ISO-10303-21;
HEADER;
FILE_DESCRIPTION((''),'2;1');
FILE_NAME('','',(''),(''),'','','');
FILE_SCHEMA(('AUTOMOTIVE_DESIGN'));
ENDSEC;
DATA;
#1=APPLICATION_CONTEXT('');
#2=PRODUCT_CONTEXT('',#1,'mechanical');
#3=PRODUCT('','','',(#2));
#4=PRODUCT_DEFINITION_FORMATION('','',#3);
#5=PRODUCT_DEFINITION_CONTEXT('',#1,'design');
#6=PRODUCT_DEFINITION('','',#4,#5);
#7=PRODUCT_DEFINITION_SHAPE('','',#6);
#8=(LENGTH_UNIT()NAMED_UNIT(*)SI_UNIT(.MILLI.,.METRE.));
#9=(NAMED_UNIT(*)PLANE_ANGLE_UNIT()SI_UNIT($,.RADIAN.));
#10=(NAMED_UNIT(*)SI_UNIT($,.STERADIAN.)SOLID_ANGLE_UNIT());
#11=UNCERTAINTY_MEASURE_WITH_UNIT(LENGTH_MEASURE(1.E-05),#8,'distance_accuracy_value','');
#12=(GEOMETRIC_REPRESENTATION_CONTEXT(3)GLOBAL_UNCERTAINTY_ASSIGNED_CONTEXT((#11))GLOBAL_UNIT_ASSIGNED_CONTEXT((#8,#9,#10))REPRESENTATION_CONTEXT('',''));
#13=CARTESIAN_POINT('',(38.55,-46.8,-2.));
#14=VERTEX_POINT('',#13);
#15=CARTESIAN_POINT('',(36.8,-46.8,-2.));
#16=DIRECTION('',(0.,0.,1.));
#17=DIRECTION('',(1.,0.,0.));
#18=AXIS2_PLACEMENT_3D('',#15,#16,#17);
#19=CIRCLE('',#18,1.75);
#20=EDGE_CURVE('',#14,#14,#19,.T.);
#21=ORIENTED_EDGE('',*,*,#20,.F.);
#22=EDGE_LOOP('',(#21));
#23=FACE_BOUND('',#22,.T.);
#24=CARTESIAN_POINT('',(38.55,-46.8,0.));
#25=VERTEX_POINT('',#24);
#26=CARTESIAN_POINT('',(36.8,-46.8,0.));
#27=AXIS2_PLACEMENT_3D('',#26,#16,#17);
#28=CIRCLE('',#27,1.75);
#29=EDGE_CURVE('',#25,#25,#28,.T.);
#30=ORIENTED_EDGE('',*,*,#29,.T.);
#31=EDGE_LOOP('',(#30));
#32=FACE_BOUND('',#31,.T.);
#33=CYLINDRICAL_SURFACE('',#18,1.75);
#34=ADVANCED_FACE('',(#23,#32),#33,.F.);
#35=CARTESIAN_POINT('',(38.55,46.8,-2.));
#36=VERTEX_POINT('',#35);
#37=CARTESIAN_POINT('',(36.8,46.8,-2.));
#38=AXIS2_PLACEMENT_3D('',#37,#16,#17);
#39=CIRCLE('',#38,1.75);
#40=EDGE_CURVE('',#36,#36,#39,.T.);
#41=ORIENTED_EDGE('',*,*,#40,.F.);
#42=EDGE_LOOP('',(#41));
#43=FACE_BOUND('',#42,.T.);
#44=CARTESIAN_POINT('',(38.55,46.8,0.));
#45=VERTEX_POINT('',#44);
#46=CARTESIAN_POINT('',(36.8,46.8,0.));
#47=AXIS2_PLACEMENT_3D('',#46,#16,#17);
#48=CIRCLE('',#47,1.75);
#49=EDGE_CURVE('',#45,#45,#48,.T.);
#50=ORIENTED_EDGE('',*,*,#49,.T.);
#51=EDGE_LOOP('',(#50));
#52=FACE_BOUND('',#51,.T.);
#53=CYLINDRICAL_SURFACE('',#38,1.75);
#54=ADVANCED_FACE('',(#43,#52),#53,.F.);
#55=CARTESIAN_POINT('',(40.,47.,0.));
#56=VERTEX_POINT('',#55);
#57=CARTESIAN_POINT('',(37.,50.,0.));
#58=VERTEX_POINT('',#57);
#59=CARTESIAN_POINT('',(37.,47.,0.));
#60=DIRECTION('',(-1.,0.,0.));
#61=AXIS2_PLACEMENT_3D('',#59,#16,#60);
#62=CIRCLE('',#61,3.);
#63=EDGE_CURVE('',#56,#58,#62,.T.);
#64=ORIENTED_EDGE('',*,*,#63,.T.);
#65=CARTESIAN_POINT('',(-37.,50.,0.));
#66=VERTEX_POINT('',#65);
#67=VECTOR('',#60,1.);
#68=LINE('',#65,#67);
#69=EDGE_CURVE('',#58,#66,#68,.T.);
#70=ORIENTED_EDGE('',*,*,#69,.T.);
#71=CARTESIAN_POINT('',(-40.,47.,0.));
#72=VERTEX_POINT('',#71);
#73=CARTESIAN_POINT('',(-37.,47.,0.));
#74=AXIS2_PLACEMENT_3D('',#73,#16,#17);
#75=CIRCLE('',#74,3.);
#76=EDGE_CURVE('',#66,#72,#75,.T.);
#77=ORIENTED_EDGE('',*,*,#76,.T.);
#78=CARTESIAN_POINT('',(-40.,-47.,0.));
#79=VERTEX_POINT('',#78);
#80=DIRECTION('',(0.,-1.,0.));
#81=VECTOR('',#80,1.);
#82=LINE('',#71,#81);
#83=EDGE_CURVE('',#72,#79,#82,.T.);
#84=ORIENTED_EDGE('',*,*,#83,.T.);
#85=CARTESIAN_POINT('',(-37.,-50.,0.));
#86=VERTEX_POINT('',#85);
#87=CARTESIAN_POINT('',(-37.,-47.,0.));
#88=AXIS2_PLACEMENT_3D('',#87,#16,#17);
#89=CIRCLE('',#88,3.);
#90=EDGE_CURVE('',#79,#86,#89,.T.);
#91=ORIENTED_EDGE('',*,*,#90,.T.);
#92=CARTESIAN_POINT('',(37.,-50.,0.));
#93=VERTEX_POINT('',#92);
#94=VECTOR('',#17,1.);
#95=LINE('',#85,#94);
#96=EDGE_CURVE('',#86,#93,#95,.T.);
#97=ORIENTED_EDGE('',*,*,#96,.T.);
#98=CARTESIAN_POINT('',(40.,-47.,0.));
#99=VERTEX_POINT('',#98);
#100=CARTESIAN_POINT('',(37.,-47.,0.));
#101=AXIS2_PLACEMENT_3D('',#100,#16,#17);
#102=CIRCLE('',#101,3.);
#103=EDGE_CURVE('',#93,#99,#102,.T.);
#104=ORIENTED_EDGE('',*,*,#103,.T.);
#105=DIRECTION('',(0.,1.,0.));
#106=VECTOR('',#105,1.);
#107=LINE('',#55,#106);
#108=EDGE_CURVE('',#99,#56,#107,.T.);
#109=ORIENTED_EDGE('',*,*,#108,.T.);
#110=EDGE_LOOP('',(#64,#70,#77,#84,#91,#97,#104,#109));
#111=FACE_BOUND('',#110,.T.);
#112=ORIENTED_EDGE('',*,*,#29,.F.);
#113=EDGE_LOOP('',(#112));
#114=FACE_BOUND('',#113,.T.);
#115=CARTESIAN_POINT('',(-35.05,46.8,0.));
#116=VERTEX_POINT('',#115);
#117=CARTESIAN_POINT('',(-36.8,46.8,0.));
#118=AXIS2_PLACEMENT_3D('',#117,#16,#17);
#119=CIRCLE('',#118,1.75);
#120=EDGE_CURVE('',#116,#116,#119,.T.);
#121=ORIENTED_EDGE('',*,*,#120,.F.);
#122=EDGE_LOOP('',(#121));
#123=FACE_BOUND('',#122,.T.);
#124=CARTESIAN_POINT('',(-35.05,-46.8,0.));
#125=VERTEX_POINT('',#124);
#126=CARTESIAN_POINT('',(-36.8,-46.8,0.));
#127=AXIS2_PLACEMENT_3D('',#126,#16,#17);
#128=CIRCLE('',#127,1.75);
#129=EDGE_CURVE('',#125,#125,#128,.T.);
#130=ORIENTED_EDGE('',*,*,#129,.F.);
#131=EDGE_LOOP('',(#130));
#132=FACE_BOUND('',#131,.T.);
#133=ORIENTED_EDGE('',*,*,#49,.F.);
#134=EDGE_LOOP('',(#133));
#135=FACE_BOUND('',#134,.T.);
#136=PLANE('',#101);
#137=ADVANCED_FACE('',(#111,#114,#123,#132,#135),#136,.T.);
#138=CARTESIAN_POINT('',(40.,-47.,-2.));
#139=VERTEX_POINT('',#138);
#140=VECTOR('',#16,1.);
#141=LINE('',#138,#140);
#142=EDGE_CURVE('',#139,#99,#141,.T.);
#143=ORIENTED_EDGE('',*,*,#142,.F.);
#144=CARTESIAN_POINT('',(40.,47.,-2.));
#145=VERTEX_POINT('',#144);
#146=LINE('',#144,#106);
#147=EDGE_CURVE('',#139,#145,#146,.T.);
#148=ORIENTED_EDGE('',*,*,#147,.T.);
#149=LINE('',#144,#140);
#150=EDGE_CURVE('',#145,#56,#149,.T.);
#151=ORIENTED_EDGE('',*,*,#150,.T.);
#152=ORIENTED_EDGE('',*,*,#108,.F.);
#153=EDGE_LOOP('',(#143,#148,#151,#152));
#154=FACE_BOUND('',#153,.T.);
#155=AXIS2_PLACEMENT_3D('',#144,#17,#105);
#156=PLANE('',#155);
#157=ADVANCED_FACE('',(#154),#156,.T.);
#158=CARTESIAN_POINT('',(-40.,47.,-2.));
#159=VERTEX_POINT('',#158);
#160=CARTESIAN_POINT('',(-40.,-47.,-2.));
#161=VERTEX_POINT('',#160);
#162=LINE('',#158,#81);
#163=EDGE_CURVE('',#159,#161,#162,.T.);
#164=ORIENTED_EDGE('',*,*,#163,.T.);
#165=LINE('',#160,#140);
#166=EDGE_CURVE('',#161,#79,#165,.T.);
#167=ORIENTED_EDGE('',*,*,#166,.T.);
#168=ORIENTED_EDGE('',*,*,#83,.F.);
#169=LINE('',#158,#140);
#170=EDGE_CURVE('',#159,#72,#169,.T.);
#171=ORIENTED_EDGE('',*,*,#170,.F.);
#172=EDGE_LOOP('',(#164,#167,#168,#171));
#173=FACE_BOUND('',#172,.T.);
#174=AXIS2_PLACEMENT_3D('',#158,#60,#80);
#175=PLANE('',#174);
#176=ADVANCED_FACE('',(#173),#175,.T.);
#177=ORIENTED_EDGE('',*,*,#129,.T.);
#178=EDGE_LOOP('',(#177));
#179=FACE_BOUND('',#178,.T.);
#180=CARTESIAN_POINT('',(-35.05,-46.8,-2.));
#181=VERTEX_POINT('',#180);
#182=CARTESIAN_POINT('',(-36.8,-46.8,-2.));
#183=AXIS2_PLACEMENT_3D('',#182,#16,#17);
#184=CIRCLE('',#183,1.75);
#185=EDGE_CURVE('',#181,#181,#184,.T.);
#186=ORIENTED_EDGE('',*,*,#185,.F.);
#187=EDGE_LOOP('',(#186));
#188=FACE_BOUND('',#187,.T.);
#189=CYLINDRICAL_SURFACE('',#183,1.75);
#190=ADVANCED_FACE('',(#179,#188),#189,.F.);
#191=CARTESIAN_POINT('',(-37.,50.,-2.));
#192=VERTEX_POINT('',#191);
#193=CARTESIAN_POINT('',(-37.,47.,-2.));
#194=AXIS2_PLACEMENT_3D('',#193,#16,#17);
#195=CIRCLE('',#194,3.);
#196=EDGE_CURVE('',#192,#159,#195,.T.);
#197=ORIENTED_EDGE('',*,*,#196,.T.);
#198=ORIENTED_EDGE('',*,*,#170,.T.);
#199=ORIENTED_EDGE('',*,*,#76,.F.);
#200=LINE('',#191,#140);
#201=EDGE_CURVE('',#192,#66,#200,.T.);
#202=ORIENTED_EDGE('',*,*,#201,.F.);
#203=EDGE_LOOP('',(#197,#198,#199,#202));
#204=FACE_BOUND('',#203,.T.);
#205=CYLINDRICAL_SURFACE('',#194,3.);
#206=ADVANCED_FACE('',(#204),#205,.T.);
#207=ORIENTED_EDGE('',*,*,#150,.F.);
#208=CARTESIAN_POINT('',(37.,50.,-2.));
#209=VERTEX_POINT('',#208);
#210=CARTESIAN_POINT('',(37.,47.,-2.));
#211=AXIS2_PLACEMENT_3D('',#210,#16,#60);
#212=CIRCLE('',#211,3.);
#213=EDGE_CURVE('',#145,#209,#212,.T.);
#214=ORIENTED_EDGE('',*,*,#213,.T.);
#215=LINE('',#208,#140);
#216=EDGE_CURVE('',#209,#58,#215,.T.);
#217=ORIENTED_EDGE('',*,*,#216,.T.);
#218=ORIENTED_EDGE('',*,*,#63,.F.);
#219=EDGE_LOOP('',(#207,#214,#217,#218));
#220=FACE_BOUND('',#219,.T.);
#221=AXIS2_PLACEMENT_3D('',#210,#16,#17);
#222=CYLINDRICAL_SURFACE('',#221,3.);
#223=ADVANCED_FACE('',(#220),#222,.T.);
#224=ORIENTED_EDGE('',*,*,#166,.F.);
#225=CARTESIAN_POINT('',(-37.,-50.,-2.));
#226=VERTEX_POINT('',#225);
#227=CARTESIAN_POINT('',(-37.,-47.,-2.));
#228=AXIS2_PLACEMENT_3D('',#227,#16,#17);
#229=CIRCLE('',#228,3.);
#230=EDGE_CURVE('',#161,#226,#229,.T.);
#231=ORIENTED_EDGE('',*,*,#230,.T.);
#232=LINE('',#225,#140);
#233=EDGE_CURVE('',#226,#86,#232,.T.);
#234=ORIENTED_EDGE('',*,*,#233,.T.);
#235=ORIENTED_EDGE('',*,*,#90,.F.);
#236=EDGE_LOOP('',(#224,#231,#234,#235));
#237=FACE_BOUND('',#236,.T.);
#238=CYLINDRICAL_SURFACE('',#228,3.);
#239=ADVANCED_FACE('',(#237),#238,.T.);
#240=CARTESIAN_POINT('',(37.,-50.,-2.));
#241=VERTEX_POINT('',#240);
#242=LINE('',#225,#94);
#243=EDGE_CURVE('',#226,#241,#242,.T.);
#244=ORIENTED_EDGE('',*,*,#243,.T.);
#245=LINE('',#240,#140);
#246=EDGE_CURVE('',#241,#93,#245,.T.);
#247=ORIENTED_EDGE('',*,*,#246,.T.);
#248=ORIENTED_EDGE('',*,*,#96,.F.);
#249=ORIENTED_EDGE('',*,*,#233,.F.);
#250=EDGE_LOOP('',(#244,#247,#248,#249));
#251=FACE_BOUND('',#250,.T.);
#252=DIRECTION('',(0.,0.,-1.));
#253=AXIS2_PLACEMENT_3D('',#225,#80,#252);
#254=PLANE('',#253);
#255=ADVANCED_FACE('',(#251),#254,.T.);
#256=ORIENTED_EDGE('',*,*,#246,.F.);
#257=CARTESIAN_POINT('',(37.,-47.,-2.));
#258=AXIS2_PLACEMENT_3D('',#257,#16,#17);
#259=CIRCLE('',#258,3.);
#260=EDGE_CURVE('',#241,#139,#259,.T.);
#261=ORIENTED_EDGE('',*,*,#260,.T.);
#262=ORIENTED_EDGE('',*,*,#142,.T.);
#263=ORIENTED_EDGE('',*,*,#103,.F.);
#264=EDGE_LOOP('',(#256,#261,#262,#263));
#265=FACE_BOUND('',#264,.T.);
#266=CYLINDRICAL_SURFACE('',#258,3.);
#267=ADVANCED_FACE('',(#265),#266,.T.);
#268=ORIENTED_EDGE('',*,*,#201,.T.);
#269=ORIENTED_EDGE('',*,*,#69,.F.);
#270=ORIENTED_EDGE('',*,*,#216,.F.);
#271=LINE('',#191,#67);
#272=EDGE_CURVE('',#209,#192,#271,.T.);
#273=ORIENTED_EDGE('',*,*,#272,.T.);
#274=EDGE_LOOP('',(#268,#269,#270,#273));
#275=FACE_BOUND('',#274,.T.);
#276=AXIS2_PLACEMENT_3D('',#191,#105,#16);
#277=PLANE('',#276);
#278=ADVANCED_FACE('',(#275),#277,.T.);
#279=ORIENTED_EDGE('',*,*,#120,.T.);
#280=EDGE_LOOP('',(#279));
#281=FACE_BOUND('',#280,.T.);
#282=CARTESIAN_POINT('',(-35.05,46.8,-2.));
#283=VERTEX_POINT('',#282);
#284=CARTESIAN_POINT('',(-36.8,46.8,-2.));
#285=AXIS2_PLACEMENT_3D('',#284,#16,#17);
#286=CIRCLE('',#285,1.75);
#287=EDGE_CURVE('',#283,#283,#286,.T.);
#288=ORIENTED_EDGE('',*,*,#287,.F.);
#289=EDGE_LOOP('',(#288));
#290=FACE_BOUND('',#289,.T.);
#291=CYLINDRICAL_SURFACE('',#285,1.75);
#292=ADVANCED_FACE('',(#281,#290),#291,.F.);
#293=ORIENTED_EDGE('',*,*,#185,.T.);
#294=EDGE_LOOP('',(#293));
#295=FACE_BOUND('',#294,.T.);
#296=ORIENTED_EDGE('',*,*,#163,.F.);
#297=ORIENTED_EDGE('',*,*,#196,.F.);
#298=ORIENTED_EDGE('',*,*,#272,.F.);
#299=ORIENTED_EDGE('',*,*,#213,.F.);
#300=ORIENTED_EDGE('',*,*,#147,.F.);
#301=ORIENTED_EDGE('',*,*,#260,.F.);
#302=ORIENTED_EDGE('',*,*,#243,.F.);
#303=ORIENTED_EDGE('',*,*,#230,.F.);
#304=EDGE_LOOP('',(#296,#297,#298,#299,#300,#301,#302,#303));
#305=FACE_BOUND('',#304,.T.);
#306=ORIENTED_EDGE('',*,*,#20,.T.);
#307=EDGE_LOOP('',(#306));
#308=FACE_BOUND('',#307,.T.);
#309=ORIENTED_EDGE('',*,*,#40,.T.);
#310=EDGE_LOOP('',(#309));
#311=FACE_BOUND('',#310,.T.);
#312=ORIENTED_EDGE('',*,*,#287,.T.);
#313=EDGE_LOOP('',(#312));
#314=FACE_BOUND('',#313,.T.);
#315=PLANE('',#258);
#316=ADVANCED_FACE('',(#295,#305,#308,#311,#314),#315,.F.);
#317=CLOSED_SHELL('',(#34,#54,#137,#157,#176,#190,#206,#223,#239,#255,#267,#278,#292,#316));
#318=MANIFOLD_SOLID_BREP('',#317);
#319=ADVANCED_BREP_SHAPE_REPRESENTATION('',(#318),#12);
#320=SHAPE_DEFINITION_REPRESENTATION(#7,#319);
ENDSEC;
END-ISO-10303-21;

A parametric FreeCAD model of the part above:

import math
import FreeCAD as App
import Part
import Sketcher
from FreeCAD import Vector
Q = App.Units.Quantity

doc = App.newDocument("Part")
body = doc.addObject("PartDesign::Body", "Body")

sketch1 = body.newObject("Sketcher::SketchObject", "Sketch")
sketch1.AttachmentSupport = (doc.getObject("XY_Plane"), [""])
sketch1.MapMode = "FlatFace"
sketch1.addGeometry([
    Part.LineSegment(Vector(37, 50, 0), Vector(-37, 50, 0)),
    Part.ArcOfCircle(Part.Circle(Vector(-37, 47, 0), Vector(0, 0, 1), 3), math.radians(90), math.radians(180)),
    Part.LineSegment(Vector(-40, 47, 0), Vector(-40, -47, 0)),
    Part.ArcOfCircle(Part.Circle(Vector(-37, -47, 0), Vector(0, 0, 1), 3), math.radians(180), math.radians(270)),
    Part.LineSegment(Vector(-37, -50, 0), Vector(37, -50, 0)),
    Part.ArcOfCircle(Part.Circle(Vector(37, -47, 0), Vector(0, 0, 1), 3), math.radians(-90), math.radians(0)),
    Part.LineSegment(Vector(40, -47, 0), Vector(40, 47, 0)),
    Part.ArcOfCircle(Part.Circle(Vector(37, 47, 0), Vector(0, 0, 1), 3), math.radians(0), math.radians(90)),
], False)
sketch1.addConstraint([
    Sketcher.Constraint("Tangent", 0, 2, 1, 1),
    Sketcher.Constraint("Tangent", 1, 2, 2, 1),
    Sketcher.Constraint("Tangent", 2, 2, 3, 1),
    Sketcher.Constraint("Tangent", 3, 2, 4, 1),
    Sketcher.Constraint("Tangent", 4, 2, 5, 1),
    Sketcher.Constraint("Tangent", 5, 2, 6, 1),
    Sketcher.Constraint("Tangent", 6, 2, 7, 1),
    Sketcher.Constraint("Tangent", 7, 2, 0, 1),
    Sketcher.Constraint("Horizontal", 0),
    Sketcher.Constraint("Vertical", 2),
    Sketcher.Constraint("Horizontal", 4),
    Sketcher.Constraint("Vertical", 6),
    Sketcher.Constraint("Equal", 1, 3),
    Sketcher.Constraint("Equal", 3, 5),
    Sketcher.Constraint("Equal", 5, 7),
    Sketcher.Constraint("Symmetric", 1, 3, 5, 3, -1, 1),
    Sketcher.Constraint("Radius", 1, Q("3 mm")),
    Sketcher.Constraint("DistanceX", 0, 2, 0, 1, Q("74 mm")),
    Sketcher.Constraint("DistanceY", 2, 2, 2, 1, Q("94 mm")),
])
pad1 = body.newObject("PartDesign::Pad", "Pad")
pad1.Profile = sketch1
pad1.Length = 2
pad1.Reversed = True

sketch2 = body.newObject("Sketcher::SketchObject", "Sketch001")
sketch2.AttachmentSupport = (doc.getObject("XY_Plane"), [""])
sketch2.MapMode = "FlatFace"
sketch2.addGeometry([
    Part.ArcOfCircle(Part.Circle(Vector(-36.8, 46.8, 0), Vector(0, 0, 1), 1.8), math.radians(180), math.radians(270)),
    Part.ArcOfCircle(Part.Circle(Vector(-36.8, 46.8, 0), Vector(0, 0, 1), 1.8), math.radians(-90), math.radians(0)),
    Part.ArcOfCircle(Part.Circle(Vector(-36.8, 46.8, 0), Vector(0, 0, 1), 1.8), math.radians(0), math.radians(90)),
    Part.ArcOfCircle(Part.Circle(Vector(-36.8, 46.8, 0), Vector(0, 0, 1), 1.8), math.radians(90), math.radians(180)),
    Part.ArcOfCircle(Part.Circle(Vector(-36.8, -46.8, 0), Vector(0, 0, 1), 1.8), math.radians(0), math.radians(90)),
    Part.ArcOfCircle(Part.Circle(Vector(-36.8, -46.8, 0), Vector(0, 0, 1), 1.8), math.radians(90), math.radians(180)),
    Part.ArcOfCircle(Part.Circle(Vector(-36.8, -46.8, 0), Vector(0, 0, 1), 1.8), math.radians(180), math.radians(270)),
    Part.ArcOfCircle(Part.Circle(Vector(-36.8, -46.8, 0), Vector(0, 0, 1), 1.8), math.radians(-90), math.radians(0)),
    Part.ArcOfCircle(Part.Circle(Vector(36.8, -46.8, 0), Vector(0, 0, 1), 1.8), math.radians(180), math.radians(270)),
    Part.ArcOfCircle(Part.Circle(Vector(36.8, -46.8, 0), Vector(0, 0, 1), 1.8), math.radians(-90), math.radians(0)),
    Part.ArcOfCircle(Part.Circle(Vector(36.8, -46.8, 0), Vector(0, 0, 1), 1.8), math.radians(0), math.radians(90)),
    Part.ArcOfCircle(Part.Circle(Vector(36.8, -46.8, 0), Vector(0, 0, 1), 1.8), math.radians(90), math.radians(180)),
    Part.ArcOfCircle(Part.Circle(Vector(36.8, 46.8, 0), Vector(0, 0, 1), 1.8), math.radians(180), math.radians(270)),
    Part.ArcOfCircle(Part.Circle(Vector(36.8, 46.8, 0), Vector(0, 0, 1), 1.8), math.radians(-90), math.radians(0)),
    Part.ArcOfCircle(Part.Circle(Vector(36.8, 46.8, 0), Vector(0, 0, 1), 1.8), math.radians(0), math.radians(90)),
    Part.ArcOfCircle(Part.Circle(Vector(36.8, 46.8, 0), Vector(0, 0, 1), 1.8), math.radians(90), math.radians(180)),
], False)
sketch2.addConstraint([
    Sketcher.Constraint("Tangent", 0, 2, 1, 1),
    Sketcher.Constraint("Tangent", 1, 2, 2, 1),
    Sketcher.Constraint("Tangent", 2, 2, 3, 1),
    Sketcher.Constraint("Tangent", 3, 2, 0, 1),
    Sketcher.Constraint("Tangent", 4, 2, 5, 1),
    Sketcher.Constraint("Tangent", 5, 2, 6, 1),
    Sketcher.Constraint("Tangent", 6, 2, 7, 1),
    Sketcher.Constraint("Tangent", 7, 2, 4, 1),
    Sketcher.Constraint("Tangent", 8, 2, 9, 1),
    Sketcher.Constraint("Tangent", 9, 2, 10, 1),
    Sketcher.Constraint("Tangent", 10, 2, 11, 1),
    Sketcher.Constraint("Tangent", 11, 2, 8, 1),
    Sketcher.Constraint("Tangent", 12, 2, 13, 1),
    Sketcher.Constraint("Tangent", 13, 2, 14, 1),
    Sketcher.Constraint("Tangent", 14, 2, 15, 1),
    Sketcher.Constraint("Tangent", 15, 2, 12, 1),
    Sketcher.Constraint("Equal", 0, 1),
    Sketcher.Constraint("Equal", 3, 4),
    Sketcher.Constraint("Equal", 4, 5),
    Sketcher.Constraint("Equal", 7, 8),
    Sketcher.Constraint("Equal", 8, 9),
    Sketcher.Constraint("Equal", 11, 12),
    Sketcher.Constraint("Equal", 12, 13),
    Sketcher.Constraint("Symmetric", 0, 3, 8, 3, -1, 1),
    Sketcher.Constraint("Symmetric", 4, 3, 12, 3, -1, 1),
    Sketcher.Constraint("Symmetric", 4, 3, 8, 3, -2),
    Sketcher.Constraint("Horizontal", 15, 3, 1, 2),
    Sketcher.Constraint("Horizontal", 1, 2, 3, 2),
    Sketcher.Constraint("Horizontal", 11, 3, 5, 2),
    Sketcher.Constraint("Horizontal", 5, 2, 7, 2),
    Sketcher.Constraint("Horizontal", 7, 2, 9, 2),
    Sketcher.Constraint("Horizontal", 9, 2, 11, 2),
    Sketcher.Constraint("Horizontal", 3, 2, 13, 2),
    Sketcher.Constraint("Horizontal", 13, 2, 15, 2),
    Sketcher.Constraint("Vertical", 7, 3, 0, 2),
    Sketcher.Constraint("Vertical", 0, 2, 2, 2),
    Sketcher.Constraint("Vertical", 2, 2, 4, 2),
    Sketcher.Constraint("Vertical", 4, 2, 6, 2),
    Sketcher.Constraint("Vertical", 15, 3, 8, 2),
    Sketcher.Constraint("Vertical", 8, 2, 10, 2),
    Sketcher.Constraint("Vertical", 10, 2, 12, 2),
    Sketcher.Constraint("Vertical", 12, 2, 14, 2),
    Sketcher.Constraint("Radius", 0, Q("1.75 mm")),
    Sketcher.Constraint("DistanceX", 0, 3, -1, 1, Q("36.8 mm")),
    Sketcher.Constraint("DistanceY", -1, 1, 0, 3, Q("46.8 mm")),
])
pocket1 = body.newObject("PartDesign::Pocket", "Pocket")
pocket1.Profile = sketch2
pocket1.Length = 2

doc.recompute()
